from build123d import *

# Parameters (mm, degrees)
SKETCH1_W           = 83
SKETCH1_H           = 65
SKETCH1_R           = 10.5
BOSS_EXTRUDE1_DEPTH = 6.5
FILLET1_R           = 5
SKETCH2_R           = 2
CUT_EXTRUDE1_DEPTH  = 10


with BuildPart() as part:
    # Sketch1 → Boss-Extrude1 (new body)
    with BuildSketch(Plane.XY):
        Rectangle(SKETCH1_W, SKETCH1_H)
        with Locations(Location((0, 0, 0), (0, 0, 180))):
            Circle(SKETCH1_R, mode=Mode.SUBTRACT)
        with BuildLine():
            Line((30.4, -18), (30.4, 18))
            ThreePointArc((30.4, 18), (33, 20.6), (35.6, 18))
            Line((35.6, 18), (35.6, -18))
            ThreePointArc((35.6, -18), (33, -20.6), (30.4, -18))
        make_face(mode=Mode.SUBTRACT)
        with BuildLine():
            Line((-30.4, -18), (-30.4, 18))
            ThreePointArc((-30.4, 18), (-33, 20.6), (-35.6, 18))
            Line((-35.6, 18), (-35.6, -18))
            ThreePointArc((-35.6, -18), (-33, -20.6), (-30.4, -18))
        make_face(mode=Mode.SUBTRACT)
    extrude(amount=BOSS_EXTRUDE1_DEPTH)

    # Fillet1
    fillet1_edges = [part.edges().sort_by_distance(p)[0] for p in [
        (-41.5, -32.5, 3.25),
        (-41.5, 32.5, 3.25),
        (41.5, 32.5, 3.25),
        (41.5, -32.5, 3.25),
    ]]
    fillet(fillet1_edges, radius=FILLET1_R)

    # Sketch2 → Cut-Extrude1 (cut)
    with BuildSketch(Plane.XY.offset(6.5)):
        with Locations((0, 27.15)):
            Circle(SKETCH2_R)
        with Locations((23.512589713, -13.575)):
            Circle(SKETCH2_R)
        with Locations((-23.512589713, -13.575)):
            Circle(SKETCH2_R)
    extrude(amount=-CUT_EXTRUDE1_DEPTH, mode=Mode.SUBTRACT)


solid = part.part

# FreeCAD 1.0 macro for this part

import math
import FreeCAD as App
import Part
import Sketcher

V = App.Vector


def edges_at(feature, points):
    """Names of the edges that pass closest to the given points."""
    edges = feature.Shape.Edges
    near = lambda p: min(range(len(edges)), key=lambda i: edges[i].distToShape(Part.Vertex(*p))[0])
    return sorted({f"Edge{near(p) + 1}" for p in points})


def add_polygon(sketch, points):
    """Adds a closed chain of lines whose ends are joined by coincident constraints."""
    first, n = sketch.GeometryCount, len(points)
    for a, b in zip(points, points[1:] + points[:1]):
        sketch.addGeometry(Part.LineSegment(App.Vector(*a, 0), App.Vector(*b, 0)), False)
    for i in range(n):
        sketch.addConstraint(Sketcher.Constraint("Coincident", first + i, 2, first + (i + 1) % n, 1))

doc = App.newDocument("Part")
body = doc.addObject("PartDesign::Body", "Body")

sketch1 = body.newObject("Sketcher::SketchObject", "Sketch")
sketch1.AttachmentSupport = (doc.getObject("XY_Plane"), [""])
sketch1.MapMode = "FlatFace"
add_polygon(sketch1, [(-41.5, 32.5), (-41.5, -32.5), (41.5, -32.5), (41.5, 32.5)])
sketch1.addGeometry(Part.LineSegment(V(-30.4, 18, 0), V(-30.4, -18, 0)), False)
sketch1.addGeometry(Part.ArcOfCircle(Part.Circle(V(-33, -18, 0), V(0, 0, 1), 2.6), math.radians(180), math.radians(360)), False)
sketch1.addGeometry(Part.LineSegment(V(-35.6, -18, 0), V(-35.6, 18, 0)), False)
sketch1.addGeometry(Part.ArcOfCircle(Part.Circle(V(-33, 18, 0), V(0, 0, 1), 2.6), math.radians(0), math.radians(180)), False)
sketch1.addGeometry(Part.Circle(V(0, 0, 0), V(0, 0, 1), 10.5), False)
sketch1.addGeometry(Part.ArcOfCircle(Part.Circle(V(33, -18, 0), V(0, 0, 1), 2.6), math.radians(180), math.radians(360)), False)
sketch1.addGeometry(Part.LineSegment(V(30.4, -18, 0), V(30.4, 18, 0)), False)
sketch1.addGeometry(Part.ArcOfCircle(Part.Circle(V(33, 18, 0), V(0, 0, 1), 2.6), math.radians(0), math.radians(180)), False)
sketch1.addGeometry(Part.LineSegment(V(35.6, 18, 0), V(35.6, -18, 0)), False)
sketch1.addConstraint([
    Sketcher.Constraint("Tangent", 4, 2, 5, 2),
    Sketcher.Constraint("Tangent", 5, 1, 6, 1),
    Sketcher.Constraint("Tangent", 6, 2, 7, 2),
    Sketcher.Constraint("Tangent", 7, 1, 4, 1),
    Sketcher.Constraint("Tangent", 9, 1, 10, 1),
    Sketcher.Constraint("Tangent", 10, 2, 11, 2),
    Sketcher.Constraint("Tangent", 11, 1, 12, 1),
    Sketcher.Constraint("Tangent", 12, 2, 9, 2),
    Sketcher.Constraint("Vertical", 0),
    Sketcher.Constraint("Horizontal", 1),
    Sketcher.Constraint("Vertical", 2),
    Sketcher.Constraint("Horizontal", 3),
    Sketcher.Constraint("Vertical", 4),
    Sketcher.Constraint("Vertical", 6),
    Sketcher.Constraint("Vertical", 10),
    Sketcher.Constraint("Vertical", 12),
    Sketcher.Constraint("Coincident", 8, 3, -1, 1),
    Sketcher.Constraint("Equal", 7, 9),
    Sketcher.Constraint("Symmetric", 7, 3, 9, 3, -1, 1),
    Sketcher.Constraint("Symmetric", 0, 2, 2, 2, -1, 1),
    Sketcher.Constraint("Horizontal", 5, 3, 9, 3),
    Sketcher.Constraint("Horizontal", 7, 3, 11, 3),
    Sketcher.Constraint("Diameter", 8, 21.0),
    Sketcher.Constraint("Radius", 5, 2.6),
    Sketcher.Constraint("DistanceX", 1, 1, 1, 2, 83.0),
    Sketcher.Constraint("DistanceY", 0, 2, 0, 1, 65.0),
    Sketcher.Constraint("DistanceY", 4, 2, 4, 1, 36.0),
    Sketcher.Constraint("DistanceX", 5, 3, -1, 1, 33.0),
])
pad1 = body.newObject("PartDesign::Pad", "Pad")
pad1.Profile = sketch1
pad1.Length = 6.5
doc.recompute()

fillet = body.newObject("PartDesign::Fillet", "Fillet")
fillet.Base = (pad1, edges_at(pad1, [
    (-41.5, -32.5, 3.25),
    (-41.5, 32.5, 3.25),
    (41.5, 32.5, 3.25),
    (41.5, -32.5, 3.25),
]))
fillet.Radius = 5

sketch2 = body.newObject("Sketcher::SketchObject", "Sketch001")
sketch2.AttachmentSupport = (doc.getObject("XY_Plane"), [""])
sketch2.MapMode = "FlatFace"
sketch2.AttachmentOffset = App.Placement(V(0, 0, 6.5), App.Rotation())
sketch2.addGeometry([
    Part.Circle(V(0, 27.15, 0), V(0, 0, 1), 2),
    Part.Circle(V(23.51259, -13.575, 0), V(0, 0, 1), 2),
    Part.Circle(V(-23.51259, -13.575, 0), V(0, 0, 1), 2),
], False)
sketch2.addConstraint([
    Sketcher.Constraint("Equal", 0, 1),
    Sketcher.Constraint("Equal", 1, 2),
    Sketcher.Constraint("Symmetric", 1, 3, 2, 3, -2),
    Sketcher.Constraint("PointOnObject", 0, 3, -2),
    Sketcher.Constraint("Diameter", 0, 4.0),
    Sketcher.Constraint("DistanceY", -1, 1, 0, 3, 27.15),
    Sketcher.Constraint("DistanceY", 1, 3, -1, 1, 13.575),
    Sketcher.Constraint("DistanceX", -1, 1, 1, 3, 23.51259),
])
pocket1 = body.newObject("PartDesign::Pocket", "Pocket")
pocket1.Profile = sketch2
pocket1.Length = 10

doc.recompute()
